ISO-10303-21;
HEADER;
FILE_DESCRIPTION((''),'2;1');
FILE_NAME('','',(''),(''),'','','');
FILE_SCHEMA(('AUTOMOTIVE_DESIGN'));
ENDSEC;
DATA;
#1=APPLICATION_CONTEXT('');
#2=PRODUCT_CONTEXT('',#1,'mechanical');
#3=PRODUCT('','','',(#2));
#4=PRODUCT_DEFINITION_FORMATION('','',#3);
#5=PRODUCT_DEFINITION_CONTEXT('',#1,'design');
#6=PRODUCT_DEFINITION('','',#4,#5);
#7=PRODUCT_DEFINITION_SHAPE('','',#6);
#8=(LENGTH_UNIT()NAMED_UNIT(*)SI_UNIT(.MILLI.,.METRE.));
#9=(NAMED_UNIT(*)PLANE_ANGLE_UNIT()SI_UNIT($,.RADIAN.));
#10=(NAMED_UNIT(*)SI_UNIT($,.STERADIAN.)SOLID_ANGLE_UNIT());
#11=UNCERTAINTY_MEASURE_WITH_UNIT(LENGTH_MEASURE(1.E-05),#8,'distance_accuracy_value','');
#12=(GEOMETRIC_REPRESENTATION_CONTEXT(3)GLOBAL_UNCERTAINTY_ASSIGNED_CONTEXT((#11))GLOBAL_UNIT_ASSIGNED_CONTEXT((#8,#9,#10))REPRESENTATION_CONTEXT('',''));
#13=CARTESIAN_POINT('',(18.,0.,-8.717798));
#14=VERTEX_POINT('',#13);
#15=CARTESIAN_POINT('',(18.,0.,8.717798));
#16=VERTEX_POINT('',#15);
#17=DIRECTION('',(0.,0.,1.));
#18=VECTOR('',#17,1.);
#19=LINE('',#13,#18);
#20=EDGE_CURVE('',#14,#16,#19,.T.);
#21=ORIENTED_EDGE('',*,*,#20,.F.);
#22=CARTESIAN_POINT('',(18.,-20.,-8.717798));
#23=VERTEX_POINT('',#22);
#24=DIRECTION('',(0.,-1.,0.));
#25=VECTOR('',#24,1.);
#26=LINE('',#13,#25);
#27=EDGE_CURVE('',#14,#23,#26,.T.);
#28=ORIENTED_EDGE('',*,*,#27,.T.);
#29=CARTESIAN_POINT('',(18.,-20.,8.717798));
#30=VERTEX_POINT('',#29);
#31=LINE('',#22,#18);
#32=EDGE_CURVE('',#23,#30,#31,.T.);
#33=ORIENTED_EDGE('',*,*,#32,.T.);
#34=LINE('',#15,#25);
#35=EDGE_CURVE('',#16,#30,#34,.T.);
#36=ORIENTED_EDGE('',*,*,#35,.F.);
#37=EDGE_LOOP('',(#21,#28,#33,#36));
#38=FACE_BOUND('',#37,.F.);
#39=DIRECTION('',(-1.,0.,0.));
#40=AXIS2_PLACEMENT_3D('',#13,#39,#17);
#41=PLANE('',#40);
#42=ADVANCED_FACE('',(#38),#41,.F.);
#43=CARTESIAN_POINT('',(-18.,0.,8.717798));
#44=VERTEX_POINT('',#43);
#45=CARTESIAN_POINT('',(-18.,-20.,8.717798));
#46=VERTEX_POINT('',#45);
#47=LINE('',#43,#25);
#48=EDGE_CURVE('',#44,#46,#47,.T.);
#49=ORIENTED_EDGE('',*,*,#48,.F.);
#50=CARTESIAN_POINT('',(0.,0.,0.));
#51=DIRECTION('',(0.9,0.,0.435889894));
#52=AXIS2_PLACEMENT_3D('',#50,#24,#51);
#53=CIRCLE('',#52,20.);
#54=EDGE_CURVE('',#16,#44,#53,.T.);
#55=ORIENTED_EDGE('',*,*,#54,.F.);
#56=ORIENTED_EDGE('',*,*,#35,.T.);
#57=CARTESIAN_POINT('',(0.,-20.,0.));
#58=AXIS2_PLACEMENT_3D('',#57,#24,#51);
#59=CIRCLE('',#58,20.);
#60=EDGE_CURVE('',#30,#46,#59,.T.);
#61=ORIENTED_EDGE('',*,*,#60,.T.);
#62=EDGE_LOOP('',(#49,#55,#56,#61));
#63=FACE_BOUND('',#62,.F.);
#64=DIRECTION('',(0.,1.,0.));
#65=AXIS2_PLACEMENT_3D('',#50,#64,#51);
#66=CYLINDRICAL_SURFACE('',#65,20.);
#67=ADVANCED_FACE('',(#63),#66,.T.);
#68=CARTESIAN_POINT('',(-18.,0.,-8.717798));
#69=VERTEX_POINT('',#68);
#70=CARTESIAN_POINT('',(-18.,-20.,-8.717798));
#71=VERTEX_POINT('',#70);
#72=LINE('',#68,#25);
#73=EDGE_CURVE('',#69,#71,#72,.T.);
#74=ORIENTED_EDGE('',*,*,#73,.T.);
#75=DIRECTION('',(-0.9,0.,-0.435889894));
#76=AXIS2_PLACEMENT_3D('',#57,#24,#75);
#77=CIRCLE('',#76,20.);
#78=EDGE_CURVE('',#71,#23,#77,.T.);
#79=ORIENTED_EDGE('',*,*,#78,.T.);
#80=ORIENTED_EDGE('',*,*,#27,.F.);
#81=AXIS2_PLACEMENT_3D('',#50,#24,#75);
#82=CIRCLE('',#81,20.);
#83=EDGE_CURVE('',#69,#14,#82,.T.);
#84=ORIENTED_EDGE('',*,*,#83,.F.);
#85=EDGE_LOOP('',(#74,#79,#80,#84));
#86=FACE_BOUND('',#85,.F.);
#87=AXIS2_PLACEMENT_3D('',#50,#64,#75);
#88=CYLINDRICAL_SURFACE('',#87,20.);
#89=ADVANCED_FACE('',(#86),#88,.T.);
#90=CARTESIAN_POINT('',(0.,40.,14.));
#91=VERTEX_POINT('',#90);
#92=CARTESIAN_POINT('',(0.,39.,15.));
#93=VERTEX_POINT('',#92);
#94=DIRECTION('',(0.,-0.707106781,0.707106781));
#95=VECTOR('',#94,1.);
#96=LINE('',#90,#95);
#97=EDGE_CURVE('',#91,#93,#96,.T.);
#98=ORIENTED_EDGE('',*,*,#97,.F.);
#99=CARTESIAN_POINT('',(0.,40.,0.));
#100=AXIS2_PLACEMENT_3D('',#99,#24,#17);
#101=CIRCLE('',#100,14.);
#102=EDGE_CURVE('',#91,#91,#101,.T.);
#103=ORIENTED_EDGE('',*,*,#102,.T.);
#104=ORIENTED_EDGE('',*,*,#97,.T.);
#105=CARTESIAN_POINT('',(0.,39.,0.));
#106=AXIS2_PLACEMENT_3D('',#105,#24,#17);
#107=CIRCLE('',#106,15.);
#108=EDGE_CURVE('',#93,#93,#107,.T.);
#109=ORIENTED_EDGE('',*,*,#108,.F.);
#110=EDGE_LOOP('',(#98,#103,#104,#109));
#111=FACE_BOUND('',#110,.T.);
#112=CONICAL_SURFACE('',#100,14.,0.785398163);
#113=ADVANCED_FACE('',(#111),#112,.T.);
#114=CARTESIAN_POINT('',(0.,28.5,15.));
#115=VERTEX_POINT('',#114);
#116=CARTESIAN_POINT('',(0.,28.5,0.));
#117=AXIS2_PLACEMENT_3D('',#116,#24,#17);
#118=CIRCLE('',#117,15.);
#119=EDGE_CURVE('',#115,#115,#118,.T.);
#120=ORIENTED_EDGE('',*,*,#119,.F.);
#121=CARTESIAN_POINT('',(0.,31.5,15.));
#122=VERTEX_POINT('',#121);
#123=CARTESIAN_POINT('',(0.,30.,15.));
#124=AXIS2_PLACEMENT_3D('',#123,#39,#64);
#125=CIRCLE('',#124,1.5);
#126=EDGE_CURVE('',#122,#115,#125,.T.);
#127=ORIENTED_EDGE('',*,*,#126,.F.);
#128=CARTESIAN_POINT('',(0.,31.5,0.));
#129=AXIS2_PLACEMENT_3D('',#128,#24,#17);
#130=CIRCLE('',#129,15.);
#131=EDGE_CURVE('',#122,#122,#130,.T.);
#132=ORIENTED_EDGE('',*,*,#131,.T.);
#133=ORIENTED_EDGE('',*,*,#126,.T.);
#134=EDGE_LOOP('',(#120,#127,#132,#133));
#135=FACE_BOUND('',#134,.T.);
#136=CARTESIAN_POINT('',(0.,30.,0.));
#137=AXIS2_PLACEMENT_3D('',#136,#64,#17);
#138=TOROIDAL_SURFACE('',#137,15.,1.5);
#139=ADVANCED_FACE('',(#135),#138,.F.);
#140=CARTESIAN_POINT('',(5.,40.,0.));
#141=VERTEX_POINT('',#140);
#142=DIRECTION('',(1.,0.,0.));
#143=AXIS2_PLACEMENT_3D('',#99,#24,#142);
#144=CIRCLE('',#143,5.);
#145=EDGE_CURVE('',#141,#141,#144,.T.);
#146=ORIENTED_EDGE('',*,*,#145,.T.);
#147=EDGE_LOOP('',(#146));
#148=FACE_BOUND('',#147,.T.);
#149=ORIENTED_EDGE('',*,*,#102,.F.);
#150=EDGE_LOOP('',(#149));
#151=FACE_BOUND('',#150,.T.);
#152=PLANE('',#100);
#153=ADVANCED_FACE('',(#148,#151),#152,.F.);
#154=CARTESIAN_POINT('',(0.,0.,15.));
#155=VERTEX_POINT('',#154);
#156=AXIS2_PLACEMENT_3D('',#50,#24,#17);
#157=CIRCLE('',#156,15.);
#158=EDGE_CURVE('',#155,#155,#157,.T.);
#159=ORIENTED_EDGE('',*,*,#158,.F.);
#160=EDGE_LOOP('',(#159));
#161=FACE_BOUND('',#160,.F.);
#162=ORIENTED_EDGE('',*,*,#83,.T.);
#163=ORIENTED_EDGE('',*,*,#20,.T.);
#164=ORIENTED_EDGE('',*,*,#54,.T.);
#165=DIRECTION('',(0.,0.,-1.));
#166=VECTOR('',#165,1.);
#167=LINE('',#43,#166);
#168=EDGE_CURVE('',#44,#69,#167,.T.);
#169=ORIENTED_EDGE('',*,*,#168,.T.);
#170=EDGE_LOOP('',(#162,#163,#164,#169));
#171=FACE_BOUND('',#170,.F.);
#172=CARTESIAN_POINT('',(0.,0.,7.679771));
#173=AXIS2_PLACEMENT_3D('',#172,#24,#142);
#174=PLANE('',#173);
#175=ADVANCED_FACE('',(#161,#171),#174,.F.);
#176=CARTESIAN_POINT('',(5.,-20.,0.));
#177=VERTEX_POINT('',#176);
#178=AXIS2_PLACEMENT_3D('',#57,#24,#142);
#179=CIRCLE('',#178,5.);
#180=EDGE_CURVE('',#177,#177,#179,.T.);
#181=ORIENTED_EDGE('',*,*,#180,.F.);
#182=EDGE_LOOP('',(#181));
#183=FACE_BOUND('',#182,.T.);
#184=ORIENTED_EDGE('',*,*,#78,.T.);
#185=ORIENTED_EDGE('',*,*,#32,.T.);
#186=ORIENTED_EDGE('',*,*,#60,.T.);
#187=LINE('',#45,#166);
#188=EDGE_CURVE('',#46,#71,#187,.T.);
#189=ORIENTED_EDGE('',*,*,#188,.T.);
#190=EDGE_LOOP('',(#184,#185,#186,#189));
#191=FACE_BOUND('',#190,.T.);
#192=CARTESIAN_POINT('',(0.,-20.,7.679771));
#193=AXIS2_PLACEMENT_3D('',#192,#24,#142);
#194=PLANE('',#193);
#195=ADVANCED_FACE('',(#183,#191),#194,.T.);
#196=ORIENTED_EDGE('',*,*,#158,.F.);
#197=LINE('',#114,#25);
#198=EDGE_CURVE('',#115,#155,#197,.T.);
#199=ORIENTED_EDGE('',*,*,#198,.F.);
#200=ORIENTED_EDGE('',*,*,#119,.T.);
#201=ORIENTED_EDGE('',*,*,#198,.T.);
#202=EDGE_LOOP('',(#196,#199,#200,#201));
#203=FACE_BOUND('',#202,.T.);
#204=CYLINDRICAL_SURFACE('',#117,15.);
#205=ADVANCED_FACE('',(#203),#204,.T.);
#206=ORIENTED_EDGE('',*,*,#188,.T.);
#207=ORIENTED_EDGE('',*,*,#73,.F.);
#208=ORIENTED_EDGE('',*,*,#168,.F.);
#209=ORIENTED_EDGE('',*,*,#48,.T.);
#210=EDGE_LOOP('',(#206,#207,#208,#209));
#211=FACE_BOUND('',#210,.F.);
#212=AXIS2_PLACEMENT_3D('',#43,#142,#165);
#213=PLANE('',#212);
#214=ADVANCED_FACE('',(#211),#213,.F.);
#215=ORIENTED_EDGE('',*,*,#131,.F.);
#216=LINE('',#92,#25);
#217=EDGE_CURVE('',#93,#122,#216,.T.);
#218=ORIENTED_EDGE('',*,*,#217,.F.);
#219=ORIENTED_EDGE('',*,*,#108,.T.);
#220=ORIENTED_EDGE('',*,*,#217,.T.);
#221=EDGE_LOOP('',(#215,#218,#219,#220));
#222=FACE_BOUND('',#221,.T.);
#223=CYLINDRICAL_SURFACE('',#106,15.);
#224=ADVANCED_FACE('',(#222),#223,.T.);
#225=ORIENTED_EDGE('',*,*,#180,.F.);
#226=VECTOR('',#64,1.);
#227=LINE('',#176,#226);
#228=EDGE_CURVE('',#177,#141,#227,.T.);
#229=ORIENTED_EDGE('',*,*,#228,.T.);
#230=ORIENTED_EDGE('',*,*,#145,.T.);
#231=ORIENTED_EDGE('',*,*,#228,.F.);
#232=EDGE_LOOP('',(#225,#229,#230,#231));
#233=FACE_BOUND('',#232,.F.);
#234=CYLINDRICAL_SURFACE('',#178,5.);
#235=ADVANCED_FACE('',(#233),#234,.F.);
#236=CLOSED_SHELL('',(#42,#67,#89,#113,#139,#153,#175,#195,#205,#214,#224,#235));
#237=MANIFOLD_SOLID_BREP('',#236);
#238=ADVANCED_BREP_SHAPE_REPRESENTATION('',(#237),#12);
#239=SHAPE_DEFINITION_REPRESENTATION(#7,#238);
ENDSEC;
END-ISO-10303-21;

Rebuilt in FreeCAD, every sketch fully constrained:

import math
import FreeCAD as App
import Part
import Sketcher

V = App.Vector
Q = App.Units.Quantity

doc = App.newDocument("Part")
body = doc.addObject("PartDesign::Body", "Body")

# Sketch on XZ plane
sketch1 = body.newObject("Sketcher::SketchObject", "Sketch")
sketch1.AttachmentSupport = (doc.getObject("XZ_Plane"), [""])
sketch1.MapMode = "FlatFace"
sketch1.addGeometry(Part.ArcOfCircle(Part.Circle(V(0, 0, 0), V(0, 0, 1), 20), math.radians(26), math.radians(154)), False)
sketch1.addGeometry(Part.LineSegment(V(-18, 9, 0), V(-18, -9, 0)), False)
sketch1.addGeometry(Part.ArcOfCircle(Part.Circle(V(0, 0, 0), V(0, 0, 1), 20), math.radians(-154), math.radians(-26)), False)
sketch1.addGeometry(Part.LineSegment(V(18, -9, 0), V(18, 9, 0)), False)
sketch1.addConstraint(Sketcher.Constraint("Coincident", 0, 2, 1, 1))
sketch1.addConstraint(Sketcher.Constraint("Coincident", 1, 2, 2, 1))
sketch1.addConstraint(Sketcher.Constraint("Coincident", 2, 2, 3, 1))
sketch1.addConstraint(Sketcher.Constraint("Coincident", 3, 2, 0, 1))
sketch1.addConstraint(Sketcher.Constraint("Vertical", 1))
sketch1.addConstraint(Sketcher.Constraint("Vertical", 3))
sketch1.addConstraint(Sketcher.Constraint("Coincident", 0, 3, -1, 1))
sketch1.addConstraint(Sketcher.Constraint("Coincident", 2, 3, -1, 1))
sketch1.addConstraint(Sketcher.Constraint("Equal", 0, 2))
sketch1.addConstraint(Sketcher.Constraint("Horizontal", 1, 2, 2, 2))
sketch1.addConstraint(Sketcher.Constraint("Radius", 0, 20.0))
sketch1.addConstraint(Sketcher.Constraint("DistanceX", 0, 2, -1, 1, 18.0))
pad1 = body.newObject("PartDesign::Pad", "Pad")
pad1.Profile = sketch1
pad1.Length = 20

# Sketch on YZ plane
sketch2 = body.newObject("Sketcher::SketchObject", "Sketch001")
sketch2.AttachmentSupport = (doc.getObject("YZ_Plane"), [""])
sketch2.MapMode = "FlatFace"
sketch2.addGeometry(Part.LineSegment(V(0, 15, 0), V(0, 0, 0)), False)
sketch2.addGeometry(Part.LineSegment(V(0, 0, 0), V(40, 0, 0)), False)
sketch2.addGeometry(Part.LineSegment(V(40, 0, 0), V(40, 14, 0)), False)
sketch2.addGeometry(Part.LineSegment(V(40, 14, 0), V(39, 15, 0)), False)
sketch2.addGeometry(Part.LineSegment(V(39, 15, 0), V(31.5, 15, 0)), False)
sketch2.addGeometry(Part.ArcOfCircle(Part.Circle(V(30, 15, 0), V(0, 0, 1), 1.5), math.radians(180), math.radians(360)), False)
sketch2.addGeometry(Part.LineSegment(V(28.5, 15, 0), V(0, 15, 0)), False)
sketch2.addConstraint(Sketcher.Constraint("Coincident", 0, 2, 1, 1))
sketch2.addConstraint(Sketcher.Constraint("Coincident", 1, 2, 2, 1))
sketch2.addConstraint(Sketcher.Constraint("Coincident", 2, 2, 3, 1))
sketch2.addConstraint(Sketcher.Constraint("Coincident", 3, 2, 4, 1))
sketch2.addConstraint(Sketcher.Constraint("Coincident", 4, 2, 5, 2))
sketch2.addConstraint(Sketcher.Constraint("Coincident", 5, 1, 6, 1))
sketch2.addConstraint(Sketcher.Constraint("Coincident", 6, 2, 0, 1))
sketch2.addConstraint(Sketcher.Constraint("Vertical", 0))
sketch2.addConstraint(Sketcher.Constraint("Horizontal", 1))
sketch2.addConstraint(Sketcher.Constraint("Vertical", 2))
sketch2.addConstraint(Sketcher.Constraint("Horizontal", 4))
sketch2.addConstraint(Sketcher.Constraint("Horizontal", 6))
sketch2.addConstraint(Sketcher.Constraint("Coincident", 0, 2, -1, 1))
sketch2.addConstraint(Sketcher.Constraint("Horizontal", 5, 3, 3, 2))
sketch2.addConstraint(Sketcher.Constraint("Horizontal", 4, 2, 5, 1))
sketch2.addConstraint(Sketcher.Constraint("Radius", 5, 1.5))
sketch2.addConstraint(Sketcher.Constraint("DistanceX", 1, 1, 1, 2, 40.0))
sketch2.addConstraint(Sketcher.Constraint("DistanceY", 0, 2, 0, 1, 15.0))
sketch2.addConstraint(Sketcher.Constraint("DistanceY", 2, 1, 2, 2, 14.0))
sketch2.addConstraint(Sketcher.Constraint("Angle", 3, Q("135 deg")))
sketch2.addConstraint(Sketcher.Constraint("DistanceX", 4, 2, 4, 1, 7.5))
revolution = body.newObject("PartDesign::Revolution", "Revolution")
revolution.Profile = sketch2
revolution.ReferenceAxis = (sketch2, ["H_Axis"])
revolution.Angle = 360

# Sketch on XZ plane
sketch3 = body.newObject("Sketcher::SketchObject", "Sketch002")
sketch3.AttachmentSupport = (doc.getObject("XZ_Plane"), [""])
sketch3.MapMode = "FlatFace"
sketch3.AttachmentOffset = App.Placement(V(0, 0, 20), App.Rotation())
sketch3.addGeometry(Part.Circle(V(0, 0, 0), V(0, 0, 1), 5), False)
sketch3.addConstraint(Sketcher.Constraint("Coincident", 0, 3, -1, 1))
sketch3.addConstraint(Sketcher.Constraint("Diameter", 0, 10.0))
pocket1 = body.newObject("PartDesign::Pocket", "Pocket")
pocket1.Profile = sketch3
pocket1.Type = "ThroughAll"

doc.recompute()
